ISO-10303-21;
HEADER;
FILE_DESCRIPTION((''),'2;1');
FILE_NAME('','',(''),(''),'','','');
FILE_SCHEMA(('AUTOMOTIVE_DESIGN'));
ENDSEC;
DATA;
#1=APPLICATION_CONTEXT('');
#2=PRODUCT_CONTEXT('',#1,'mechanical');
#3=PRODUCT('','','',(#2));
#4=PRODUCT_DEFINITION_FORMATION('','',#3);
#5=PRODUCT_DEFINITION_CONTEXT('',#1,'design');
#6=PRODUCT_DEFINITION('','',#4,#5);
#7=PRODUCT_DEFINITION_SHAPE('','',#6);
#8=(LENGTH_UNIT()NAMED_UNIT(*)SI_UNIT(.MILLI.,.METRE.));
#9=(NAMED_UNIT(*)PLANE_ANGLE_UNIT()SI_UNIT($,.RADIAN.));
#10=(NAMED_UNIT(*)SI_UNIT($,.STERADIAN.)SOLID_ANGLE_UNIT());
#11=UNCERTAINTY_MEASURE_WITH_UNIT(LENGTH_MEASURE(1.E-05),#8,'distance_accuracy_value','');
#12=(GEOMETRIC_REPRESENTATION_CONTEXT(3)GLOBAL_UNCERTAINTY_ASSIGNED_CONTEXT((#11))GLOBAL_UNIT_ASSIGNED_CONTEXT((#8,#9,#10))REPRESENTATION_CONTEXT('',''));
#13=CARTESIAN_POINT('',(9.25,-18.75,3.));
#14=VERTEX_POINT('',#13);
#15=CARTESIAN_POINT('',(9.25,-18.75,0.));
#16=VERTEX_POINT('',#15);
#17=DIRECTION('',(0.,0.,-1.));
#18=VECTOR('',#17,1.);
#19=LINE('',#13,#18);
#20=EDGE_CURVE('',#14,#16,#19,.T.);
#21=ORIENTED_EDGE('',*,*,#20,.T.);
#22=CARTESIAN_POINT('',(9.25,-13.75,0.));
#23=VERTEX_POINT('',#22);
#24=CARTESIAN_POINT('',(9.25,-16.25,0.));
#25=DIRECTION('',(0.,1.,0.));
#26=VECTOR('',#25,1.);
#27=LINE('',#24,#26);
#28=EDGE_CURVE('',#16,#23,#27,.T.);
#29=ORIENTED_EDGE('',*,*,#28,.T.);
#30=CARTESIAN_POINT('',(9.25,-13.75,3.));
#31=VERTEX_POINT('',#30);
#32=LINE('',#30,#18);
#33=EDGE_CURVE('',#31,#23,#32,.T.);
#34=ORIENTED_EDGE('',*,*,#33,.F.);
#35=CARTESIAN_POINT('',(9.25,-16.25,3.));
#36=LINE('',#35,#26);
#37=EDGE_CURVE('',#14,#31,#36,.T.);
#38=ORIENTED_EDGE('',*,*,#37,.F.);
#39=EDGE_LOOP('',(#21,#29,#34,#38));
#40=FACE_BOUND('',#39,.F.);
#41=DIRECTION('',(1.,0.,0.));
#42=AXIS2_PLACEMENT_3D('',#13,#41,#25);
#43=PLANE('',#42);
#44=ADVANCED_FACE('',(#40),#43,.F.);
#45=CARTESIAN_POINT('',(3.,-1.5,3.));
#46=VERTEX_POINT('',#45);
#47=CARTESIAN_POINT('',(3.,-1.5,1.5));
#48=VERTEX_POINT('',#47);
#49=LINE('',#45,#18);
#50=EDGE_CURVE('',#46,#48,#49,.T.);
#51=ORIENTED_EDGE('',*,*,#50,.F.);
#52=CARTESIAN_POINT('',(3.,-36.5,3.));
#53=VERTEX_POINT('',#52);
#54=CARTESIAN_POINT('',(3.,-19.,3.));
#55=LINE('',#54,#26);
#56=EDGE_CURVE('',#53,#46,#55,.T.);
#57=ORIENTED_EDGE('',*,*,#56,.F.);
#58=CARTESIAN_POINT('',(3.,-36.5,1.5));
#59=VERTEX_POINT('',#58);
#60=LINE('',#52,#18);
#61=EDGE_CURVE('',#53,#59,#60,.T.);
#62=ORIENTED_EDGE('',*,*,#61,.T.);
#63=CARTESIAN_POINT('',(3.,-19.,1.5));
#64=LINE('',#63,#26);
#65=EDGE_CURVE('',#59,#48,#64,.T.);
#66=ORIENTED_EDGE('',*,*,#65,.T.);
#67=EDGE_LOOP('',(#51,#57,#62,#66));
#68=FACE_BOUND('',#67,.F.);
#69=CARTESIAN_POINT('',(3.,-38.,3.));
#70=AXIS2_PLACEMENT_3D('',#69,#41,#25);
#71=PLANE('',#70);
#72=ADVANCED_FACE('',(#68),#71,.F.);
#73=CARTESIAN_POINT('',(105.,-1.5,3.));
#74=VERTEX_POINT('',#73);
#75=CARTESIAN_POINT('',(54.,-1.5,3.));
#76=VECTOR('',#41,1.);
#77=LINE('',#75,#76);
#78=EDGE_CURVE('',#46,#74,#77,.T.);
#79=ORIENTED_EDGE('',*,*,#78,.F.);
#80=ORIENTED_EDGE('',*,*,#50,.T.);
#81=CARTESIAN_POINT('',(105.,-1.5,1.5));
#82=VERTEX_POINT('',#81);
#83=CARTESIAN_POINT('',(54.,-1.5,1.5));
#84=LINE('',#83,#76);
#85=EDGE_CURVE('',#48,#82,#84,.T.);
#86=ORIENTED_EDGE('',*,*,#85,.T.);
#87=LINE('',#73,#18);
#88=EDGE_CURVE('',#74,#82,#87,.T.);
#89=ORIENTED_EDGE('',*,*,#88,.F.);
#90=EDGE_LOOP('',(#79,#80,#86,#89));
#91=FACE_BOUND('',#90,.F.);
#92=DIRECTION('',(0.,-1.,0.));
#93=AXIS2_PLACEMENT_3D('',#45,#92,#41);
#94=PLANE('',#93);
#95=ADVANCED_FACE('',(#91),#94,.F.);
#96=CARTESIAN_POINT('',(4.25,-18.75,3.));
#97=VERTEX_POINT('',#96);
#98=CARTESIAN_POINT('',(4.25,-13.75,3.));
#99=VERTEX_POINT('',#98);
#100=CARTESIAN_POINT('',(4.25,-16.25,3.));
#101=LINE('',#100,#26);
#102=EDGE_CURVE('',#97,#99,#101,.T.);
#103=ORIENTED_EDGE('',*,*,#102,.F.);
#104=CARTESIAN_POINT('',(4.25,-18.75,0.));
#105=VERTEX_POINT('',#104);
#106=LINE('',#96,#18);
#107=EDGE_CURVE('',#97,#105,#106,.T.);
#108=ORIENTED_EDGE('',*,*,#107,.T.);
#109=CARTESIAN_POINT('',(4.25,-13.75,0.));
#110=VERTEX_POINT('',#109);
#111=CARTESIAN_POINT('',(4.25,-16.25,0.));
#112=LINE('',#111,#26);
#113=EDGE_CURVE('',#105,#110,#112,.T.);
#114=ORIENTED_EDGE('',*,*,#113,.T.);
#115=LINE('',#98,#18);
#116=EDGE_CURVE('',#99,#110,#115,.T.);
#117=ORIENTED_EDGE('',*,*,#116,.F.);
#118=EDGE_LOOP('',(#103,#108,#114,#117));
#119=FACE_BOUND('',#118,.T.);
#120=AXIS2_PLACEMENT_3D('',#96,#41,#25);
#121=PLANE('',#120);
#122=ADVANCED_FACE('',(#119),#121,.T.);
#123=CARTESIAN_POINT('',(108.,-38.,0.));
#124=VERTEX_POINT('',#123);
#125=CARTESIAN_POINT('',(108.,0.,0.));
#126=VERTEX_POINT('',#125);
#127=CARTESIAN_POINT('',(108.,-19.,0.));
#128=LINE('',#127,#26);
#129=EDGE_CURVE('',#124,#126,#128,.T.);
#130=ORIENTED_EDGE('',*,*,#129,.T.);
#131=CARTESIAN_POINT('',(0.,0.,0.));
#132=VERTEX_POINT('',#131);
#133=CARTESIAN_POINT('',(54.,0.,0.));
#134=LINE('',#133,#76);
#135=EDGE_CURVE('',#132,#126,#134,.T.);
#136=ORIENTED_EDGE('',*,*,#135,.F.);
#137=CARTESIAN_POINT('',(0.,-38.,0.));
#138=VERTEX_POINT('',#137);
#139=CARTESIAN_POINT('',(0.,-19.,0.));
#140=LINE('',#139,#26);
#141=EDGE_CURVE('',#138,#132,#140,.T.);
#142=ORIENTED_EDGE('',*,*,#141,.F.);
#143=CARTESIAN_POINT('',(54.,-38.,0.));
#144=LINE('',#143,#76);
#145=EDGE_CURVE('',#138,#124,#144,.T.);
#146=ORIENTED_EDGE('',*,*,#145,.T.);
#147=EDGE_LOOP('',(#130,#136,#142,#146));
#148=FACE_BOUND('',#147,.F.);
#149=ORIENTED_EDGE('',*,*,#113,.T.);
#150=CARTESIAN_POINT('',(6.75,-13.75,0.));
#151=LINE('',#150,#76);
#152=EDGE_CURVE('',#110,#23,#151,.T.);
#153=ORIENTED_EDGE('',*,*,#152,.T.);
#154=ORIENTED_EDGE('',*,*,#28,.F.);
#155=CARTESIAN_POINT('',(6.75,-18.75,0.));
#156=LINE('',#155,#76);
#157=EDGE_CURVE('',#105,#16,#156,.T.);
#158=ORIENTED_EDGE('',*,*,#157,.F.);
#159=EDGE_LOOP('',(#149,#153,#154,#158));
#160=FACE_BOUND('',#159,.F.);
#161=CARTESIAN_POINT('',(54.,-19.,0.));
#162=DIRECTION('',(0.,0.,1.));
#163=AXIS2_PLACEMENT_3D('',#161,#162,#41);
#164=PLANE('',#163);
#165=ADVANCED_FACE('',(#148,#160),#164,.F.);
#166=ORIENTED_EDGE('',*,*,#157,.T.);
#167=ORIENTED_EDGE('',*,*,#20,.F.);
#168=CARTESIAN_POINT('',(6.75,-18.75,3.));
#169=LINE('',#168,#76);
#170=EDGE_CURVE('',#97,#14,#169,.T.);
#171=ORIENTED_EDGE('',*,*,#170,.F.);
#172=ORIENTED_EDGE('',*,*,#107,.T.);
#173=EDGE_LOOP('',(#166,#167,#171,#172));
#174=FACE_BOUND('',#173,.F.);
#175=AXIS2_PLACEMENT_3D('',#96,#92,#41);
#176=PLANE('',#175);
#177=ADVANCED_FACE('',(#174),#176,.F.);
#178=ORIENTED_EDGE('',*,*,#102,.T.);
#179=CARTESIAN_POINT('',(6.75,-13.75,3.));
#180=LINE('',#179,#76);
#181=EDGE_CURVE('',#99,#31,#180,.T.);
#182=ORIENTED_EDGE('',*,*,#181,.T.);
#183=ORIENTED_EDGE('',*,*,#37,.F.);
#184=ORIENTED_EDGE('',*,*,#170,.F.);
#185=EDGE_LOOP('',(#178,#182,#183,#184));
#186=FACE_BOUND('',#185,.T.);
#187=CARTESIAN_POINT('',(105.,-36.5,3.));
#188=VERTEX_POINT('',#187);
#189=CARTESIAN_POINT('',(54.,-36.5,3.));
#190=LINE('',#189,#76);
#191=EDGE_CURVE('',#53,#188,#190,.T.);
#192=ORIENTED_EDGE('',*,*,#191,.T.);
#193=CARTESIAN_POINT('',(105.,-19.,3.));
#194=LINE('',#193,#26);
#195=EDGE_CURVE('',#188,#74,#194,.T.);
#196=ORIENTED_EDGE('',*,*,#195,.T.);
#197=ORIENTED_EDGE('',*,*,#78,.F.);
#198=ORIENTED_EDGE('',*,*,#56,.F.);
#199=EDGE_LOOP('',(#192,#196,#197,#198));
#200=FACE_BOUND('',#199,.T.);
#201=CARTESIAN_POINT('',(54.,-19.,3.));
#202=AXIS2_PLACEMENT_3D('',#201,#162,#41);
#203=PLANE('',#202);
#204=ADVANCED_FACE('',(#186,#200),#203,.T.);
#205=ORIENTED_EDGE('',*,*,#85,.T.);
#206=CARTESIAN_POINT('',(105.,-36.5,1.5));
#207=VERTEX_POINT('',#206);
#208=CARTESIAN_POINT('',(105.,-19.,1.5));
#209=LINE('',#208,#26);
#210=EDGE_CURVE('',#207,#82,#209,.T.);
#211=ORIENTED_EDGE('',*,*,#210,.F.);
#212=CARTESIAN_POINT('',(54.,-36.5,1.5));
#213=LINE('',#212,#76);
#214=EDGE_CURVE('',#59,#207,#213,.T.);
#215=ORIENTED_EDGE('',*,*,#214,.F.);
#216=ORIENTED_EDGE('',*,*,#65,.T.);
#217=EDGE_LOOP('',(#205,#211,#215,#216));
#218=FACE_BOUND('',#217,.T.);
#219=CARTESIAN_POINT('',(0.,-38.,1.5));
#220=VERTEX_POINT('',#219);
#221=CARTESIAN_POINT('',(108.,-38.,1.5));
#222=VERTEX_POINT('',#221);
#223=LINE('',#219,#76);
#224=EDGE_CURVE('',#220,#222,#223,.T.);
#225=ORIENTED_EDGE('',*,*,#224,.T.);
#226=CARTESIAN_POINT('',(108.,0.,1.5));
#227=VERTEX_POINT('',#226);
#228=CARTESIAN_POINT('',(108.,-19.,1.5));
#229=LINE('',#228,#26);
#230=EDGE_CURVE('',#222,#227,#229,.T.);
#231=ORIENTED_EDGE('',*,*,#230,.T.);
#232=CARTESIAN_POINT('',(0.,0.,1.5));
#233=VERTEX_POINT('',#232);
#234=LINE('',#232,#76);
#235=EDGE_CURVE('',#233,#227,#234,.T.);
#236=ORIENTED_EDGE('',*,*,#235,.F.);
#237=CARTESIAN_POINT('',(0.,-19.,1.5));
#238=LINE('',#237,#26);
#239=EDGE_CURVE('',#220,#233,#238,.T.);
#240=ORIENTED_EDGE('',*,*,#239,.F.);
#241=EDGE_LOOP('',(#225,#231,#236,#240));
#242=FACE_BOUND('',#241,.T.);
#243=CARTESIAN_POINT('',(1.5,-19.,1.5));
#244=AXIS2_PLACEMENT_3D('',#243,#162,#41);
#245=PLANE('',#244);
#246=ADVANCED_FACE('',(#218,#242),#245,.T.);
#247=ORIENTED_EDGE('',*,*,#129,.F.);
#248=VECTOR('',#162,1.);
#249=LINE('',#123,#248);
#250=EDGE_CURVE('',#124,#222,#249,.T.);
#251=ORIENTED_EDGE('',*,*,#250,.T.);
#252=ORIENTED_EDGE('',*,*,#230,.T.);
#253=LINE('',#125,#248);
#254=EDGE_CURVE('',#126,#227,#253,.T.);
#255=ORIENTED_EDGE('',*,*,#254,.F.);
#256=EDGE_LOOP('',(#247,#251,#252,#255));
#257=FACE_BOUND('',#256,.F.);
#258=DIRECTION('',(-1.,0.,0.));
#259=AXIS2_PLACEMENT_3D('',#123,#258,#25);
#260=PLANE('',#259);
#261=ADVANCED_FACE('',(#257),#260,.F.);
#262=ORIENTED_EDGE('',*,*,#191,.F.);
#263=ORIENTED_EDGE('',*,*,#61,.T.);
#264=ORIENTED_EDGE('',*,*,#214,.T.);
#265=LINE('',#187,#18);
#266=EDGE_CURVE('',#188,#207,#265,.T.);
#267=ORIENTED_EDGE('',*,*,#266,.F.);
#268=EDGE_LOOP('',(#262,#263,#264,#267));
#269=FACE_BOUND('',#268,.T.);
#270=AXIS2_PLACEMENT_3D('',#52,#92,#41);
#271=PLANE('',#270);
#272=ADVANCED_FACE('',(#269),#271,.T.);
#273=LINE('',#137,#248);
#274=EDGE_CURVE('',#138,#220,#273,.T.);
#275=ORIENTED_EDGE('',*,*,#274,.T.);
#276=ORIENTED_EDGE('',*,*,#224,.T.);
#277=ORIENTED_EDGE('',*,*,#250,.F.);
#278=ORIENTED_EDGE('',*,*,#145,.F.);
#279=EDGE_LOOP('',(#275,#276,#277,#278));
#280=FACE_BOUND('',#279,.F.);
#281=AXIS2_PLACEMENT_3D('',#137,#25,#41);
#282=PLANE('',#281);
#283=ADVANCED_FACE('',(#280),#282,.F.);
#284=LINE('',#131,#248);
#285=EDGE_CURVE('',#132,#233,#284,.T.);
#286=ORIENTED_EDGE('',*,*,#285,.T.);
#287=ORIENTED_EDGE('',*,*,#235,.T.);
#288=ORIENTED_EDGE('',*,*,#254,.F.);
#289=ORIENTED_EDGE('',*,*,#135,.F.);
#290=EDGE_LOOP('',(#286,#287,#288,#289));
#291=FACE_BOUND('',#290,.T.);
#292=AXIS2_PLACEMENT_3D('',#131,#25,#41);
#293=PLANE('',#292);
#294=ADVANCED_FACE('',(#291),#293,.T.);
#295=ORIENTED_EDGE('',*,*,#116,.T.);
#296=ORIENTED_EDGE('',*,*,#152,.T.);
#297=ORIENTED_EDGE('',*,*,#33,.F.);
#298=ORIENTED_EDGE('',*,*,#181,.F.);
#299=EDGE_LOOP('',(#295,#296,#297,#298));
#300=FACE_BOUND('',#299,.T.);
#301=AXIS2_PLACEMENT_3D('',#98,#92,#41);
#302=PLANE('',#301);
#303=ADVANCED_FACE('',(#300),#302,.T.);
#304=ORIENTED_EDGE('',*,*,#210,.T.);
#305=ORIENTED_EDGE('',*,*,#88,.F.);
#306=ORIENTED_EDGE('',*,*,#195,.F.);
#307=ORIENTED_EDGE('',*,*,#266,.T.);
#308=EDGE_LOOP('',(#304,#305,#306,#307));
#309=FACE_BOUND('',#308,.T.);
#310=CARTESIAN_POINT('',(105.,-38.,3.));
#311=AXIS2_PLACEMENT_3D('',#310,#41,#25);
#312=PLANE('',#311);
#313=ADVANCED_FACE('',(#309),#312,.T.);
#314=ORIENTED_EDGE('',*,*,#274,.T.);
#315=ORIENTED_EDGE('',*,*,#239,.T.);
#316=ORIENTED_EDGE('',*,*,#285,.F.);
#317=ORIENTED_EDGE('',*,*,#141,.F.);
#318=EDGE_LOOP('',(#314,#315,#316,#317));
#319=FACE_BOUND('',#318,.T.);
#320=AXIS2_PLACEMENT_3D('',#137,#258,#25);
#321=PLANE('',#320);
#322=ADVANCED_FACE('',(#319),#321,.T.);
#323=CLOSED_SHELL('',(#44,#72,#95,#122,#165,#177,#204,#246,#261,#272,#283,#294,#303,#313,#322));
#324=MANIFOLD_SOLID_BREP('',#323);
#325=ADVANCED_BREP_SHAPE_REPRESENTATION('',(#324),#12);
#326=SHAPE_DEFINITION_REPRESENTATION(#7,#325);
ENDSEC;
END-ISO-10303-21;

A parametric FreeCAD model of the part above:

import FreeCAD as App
import Part
import Sketcher

doc = App.newDocument("Part")
params = doc.addObject("Spreadsheet::Sheet", "Params")
for row, (alias, value) in enumerate([
    ("sketch1_width", "108 mm"),
    ("sketch1_height", "38 mm"),
    ("pad1_length", "3 mm"),
    ("sketch2_width", "3 mm"),
    ("sketch2_height", "38 mm"),
    ("pocket1_length", "1.5 mm"),
    ("sketch3_width", "3 mm"),
    ("sketch3_height", "38 mm"),
    ("pocket2_length", "1.5 mm"),
    ("sketch4_width", "102 mm"),
    ("sketch4_height", "1.5 mm"),
    ("pocket3_length", "1.5 mm"),
    ("sketch5_width", "102 mm"),
    ("sketch5_height", "1.5 mm"),
    ("pocket4_length", "1.5 mm"),
    ("sketch6_width", "5 mm"),
    ("pocket5_length", "3 mm"),
], start=1):
    params.set(f"A{row}", alias)
    params.set(f"B{row}", "=" + value)
    params.setAlias(f"B{row}", alias)

body = doc.addObject("PartDesign::Body", "Body")

# Sketch on XY plane
sketch1 = doc.addObject("Sketcher::SketchObject", "Sketch")
body.addObject(sketch1)
sketch1.AttachmentSupport = (doc.XY_Plane, [""])
sketch1.MapMode = "FlatFace"
sketch1.addGeometry([
    Part.LineSegment(App.Vector(0, 0, 0), App.Vector(0, -38, 0)),
    Part.LineSegment(App.Vector(0, -38, 0), App.Vector(108, -38, 0)),
    Part.LineSegment(App.Vector(108, -38, 0), App.Vector(108, 0, 0)),
    Part.LineSegment(App.Vector(108, 0, 0), App.Vector(0, 0, 0)),
], False)
sketch1.addConstraint([
    Sketcher.Constraint("Coincident", 0, 2, 1, 1),
    Sketcher.Constraint("Coincident", 1, 2, 2, 1),
    Sketcher.Constraint("Coincident", 2, 2, 3, 1),
    Sketcher.Constraint("Coincident", 3, 2, 0, 1),
    Sketcher.Constraint("Vertical", 0),
    Sketcher.Constraint("Horizontal", 1),
    Sketcher.Constraint("Vertical", 2),
    Sketcher.Constraint("Horizontal", 3),
    Sketcher.Constraint("Coincident", 3, 2, -1, 1),
    Sketcher.Constraint("DistanceX", 1, 1, 1, 2, 108.0),
    Sketcher.Constraint("DistanceY", 0, 2, 0, 1, 38.0),
])
sketch1.setExpression("Constraints[9]", "Params.sketch1_width")
sketch1.setExpression("Constraints[10]", "Params.sketch1_height")
pad1 = doc.addObject("PartDesign::Pad", "Pad")
body.addObject(pad1)
pad1.Profile = sketch1
pad1.setExpression("Length", "Params.pad1_length")

# Sketch on XY plane
sketch2 = doc.addObject("Sketcher::SketchObject", "Sketch001")
body.addObject(sketch2)
sketch2.AttachmentSupport = (doc.XY_Plane, [""])
sketch2.MapMode = "FlatFace"
sketch2.AttachmentOffset = App.Placement(App.Vector(0, 0, 3), App.Rotation())
sketch2.addGeometry([
    Part.LineSegment(App.Vector(0, 0, 0), App.Vector(0, -38, 0)),
    Part.LineSegment(App.Vector(0, -38, 0), App.Vector(3, -38, 0)),
    Part.LineSegment(App.Vector(3, -38, 0), App.Vector(3, 0, 0)),
    Part.LineSegment(App.Vector(3, 0, 0), App.Vector(0, 0, 0)),
], False)
sketch2.addConstraint([
    Sketcher.Constraint("Coincident", 0, 2, 1, 1),
    Sketcher.Constraint("Coincident", 1, 2, 2, 1),
    Sketcher.Constraint("Coincident", 2, 2, 3, 1),
    Sketcher.Constraint("Coincident", 3, 2, 0, 1),
    Sketcher.Constraint("Vertical", 0),
    Sketcher.Constraint("Horizontal", 1),
    Sketcher.Constraint("Vertical", 2),
    Sketcher.Constraint("Horizontal", 3),
    Sketcher.Constraint("Coincident", 3, 2, -1, 1),
    Sketcher.Constraint("DistanceX", 1, 1, 1, 2, 3.0),
    Sketcher.Constraint("DistanceY", 0, 2, 0, 1, 38.0),
])
sketch2.setExpression("Constraints[9]", "Params.sketch2_width")
sketch2.setExpression("Constraints[10]", "Params.sketch2_height")
pocket1 = doc.addObject("PartDesign::Pocket", "Pocket")
body.addObject(pocket1)
pocket1.Profile = sketch2
pocket1.setExpression("Length", "Params.pocket1_length")

# Sketch on XY plane
sketch3 = doc.addObject("Sketcher::SketchObject", "Sketch002")
body.addObject(sketch3)
sketch3.AttachmentSupport = (doc.XY_Plane, [""])
sketch3.MapMode = "FlatFace"
sketch3.AttachmentOffset = App.Placement(App.Vector(0, 0, 3), App.Rotation())
sketch3.addGeometry([
    Part.LineSegment(App.Vector(105, 0, 0), App.Vector(105, -38, 0)),
    Part.LineSegment(App.Vector(105, -38, 0), App.Vector(108, -38, 0)),
    Part.LineSegment(App.Vector(108, -38, 0), App.Vector(108, 0, 0)),
    Part.LineSegment(App.Vector(108, 0, 0), App.Vector(105, 0, 0)),
], False)
sketch3.addConstraint([
    Sketcher.Constraint("Coincident", 0, 2, 1, 1),
    Sketcher.Constraint("Coincident", 1, 2, 2, 1),
    Sketcher.Constraint("Coincident", 2, 2, 3, 1),
    Sketcher.Constraint("Coincident", 3, 2, 0, 1),
    Sketcher.Constraint("Vertical", 0),
    Sketcher.Constraint("Horizontal", 1),
    Sketcher.Constraint("Vertical", 2),
    Sketcher.Constraint("Horizontal", 3),
    Sketcher.Constraint("PointOnObject", 2, 2, -1),
    Sketcher.Constraint("DistanceX", 1, 1, 1, 2, 3.0),
    Sketcher.Constraint("DistanceY", 0, 2, 0, 1, 38.0),
    Sketcher.Constraint("DistanceX", -1, 1, 0, 2, 105.0),
])
sketch3.setExpression("Constraints[9]", "Params.sketch3_width")
sketch3.setExpression("Constraints[10]", "Params.sketch3_height")
pocket2 = doc.addObject("PartDesign::Pocket", "Pocket001")
body.addObject(pocket2)
pocket2.Profile = sketch3
pocket2.setExpression("Length", "Params.pocket2_length")

# Sketch on XY plane
sketch4 = doc.addObject("Sketcher::SketchObject", "Sketch003")
body.addObject(sketch4)
sketch4.AttachmentSupport = (doc.XY_Plane, [""])
sketch4.MapMode = "FlatFace"
sketch4.AttachmentOffset = App.Placement(App.Vector(0, 0, 3), App.Rotation())
sketch4.addGeometry([
    Part.LineSegment(App.Vector(3, 0, 0), App.Vector(3, -1.5, 0)),
    Part.LineSegment(App.Vector(3, -1.5, 0), App.Vector(105, -1.5, 0)),
    Part.LineSegment(App.Vector(105, -1.5, 0), App.Vector(105, 0, 0)),
    Part.LineSegment(App.Vector(105, 0, 0), App.Vector(3, 0, 0)),
], False)
sketch4.addConstraint([
    Sketcher.Constraint("Coincident", 0, 2, 1, 1),
    Sketcher.Constraint("Coincident", 1, 2, 2, 1),
    Sketcher.Constraint("Coincident", 2, 2, 3, 1),
    Sketcher.Constraint("Coincident", 3, 2, 0, 1),
    Sketcher.Constraint("Vertical", 0),
    Sketcher.Constraint("Horizontal", 1),
    Sketcher.Constraint("Vertical", 2),
    Sketcher.Constraint("Horizontal", 3),
    Sketcher.Constraint("PointOnObject", 2, 2, -1),
    Sketcher.Constraint("DistanceX", 1, 1, 1, 2, 102.0),
    Sketcher.Constraint("DistanceY", 0, 2, 0, 1, 1.5),
    Sketcher.Constraint("DistanceX", -1, 1, 0, 2, 3.0),
])
sketch4.setExpression("Constraints[9]", "Params.sketch4_width")
sketch4.setExpression("Constraints[10]", "Params.sketch4_height")
pocket3 = doc.addObject("PartDesign::Pocket", "Pocket002")
body.addObject(pocket3)
pocket3.Profile = sketch4
pocket3.setExpression("Length", "Params.pocket3_length")

# Sketch on XY plane
sketch5 = doc.addObject("Sketcher::SketchObject", "Sketch004")
body.addObject(sketch5)
sketch5.AttachmentSupport = (doc.XY_Plane, [""])
sketch5.MapMode = "FlatFace"
sketch5.AttachmentOffset = App.Placement(App.Vector(0, 0, 3), App.Rotation())
sketch5.addGeometry([
    Part.LineSegment(App.Vector(3, -36.5, 0), App.Vector(3, -38, 0)),
    Part.LineSegment(App.Vector(3, -38, 0), App.Vector(105, -38, 0)),
    Part.LineSegment(App.Vector(105, -38, 0), App.Vector(105, -36.5, 0)),
    Part.LineSegment(App.Vector(105, -36.5, 0), App.Vector(3, -36.5, 0)),
], False)
sketch5.addConstraint([
    Sketcher.Constraint("Coincident", 0, 2, 1, 1),
    Sketcher.Constraint("Coincident", 1, 2, 2, 1),
    Sketcher.Constraint("Coincident", 2, 2, 3, 1),
    Sketcher.Constraint("Coincident", 3, 2, 0, 1),
    Sketcher.Constraint("Vertical", 0),
    Sketcher.Constraint("Horizontal", 1),
    Sketcher.Constraint("Vertical", 2),
    Sketcher.Constraint("Horizontal", 3),
    Sketcher.Constraint("DistanceX", 1, 1, 1, 2, 102.0),
    Sketcher.Constraint("DistanceY", 0, 2, 0, 1, 1.5),
    Sketcher.Constraint("DistanceX", -1, 1, 0, 2, 3.0),
    Sketcher.Constraint("DistanceY", 0, 2, -1, 1, 38.0),
])
sketch5.setExpression("Constraints[8]", "Params.sketch5_width")
sketch5.setExpression("Constraints[9]", "Params.sketch5_height")
pocket4 = doc.addObject("PartDesign::Pocket", "Pocket003")
body.addObject(pocket4)
pocket4.Profile = sketch5
pocket4.setExpression("Length", "Params.pocket4_length")

# Sketch on XY plane
sketch6 = doc.addObject("Sketcher::SketchObject", "Sketch005")
body.addObject(sketch6)
sketch6.AttachmentSupport = (doc.XY_Plane, [""])
sketch6.MapMode = "FlatFace"
sketch6.AttachmentOffset = App.Placement(App.Vector(0, 0, 3), App.Rotation())
sketch6.addGeometry([
    Part.LineSegment(App.Vector(4, -14, 0), App.Vector(4, -19, 0)),
    Part.LineSegment(App.Vector(4, -19, 0), App.Vector(9, -19, 0)),
    Part.LineSegment(App.Vector(9, -19, 0), App.Vector(9, -14, 0)),
    Part.LineSegment(App.Vector(9, -14, 0), App.Vector(4, -14, 0)),
], False)
sketch6.addConstraint([
    Sketcher.Constraint("Coincident", 0, 2, 1, 1),
    Sketcher.Constraint("Coincident", 1, 2, 2, 1),
    Sketcher.Constraint("Coincident", 2, 2, 3, 1),
    Sketcher.Constraint("Coincident", 3, 2, 0, 1),
    Sketcher.Constraint("Vertical", 0),
    Sketcher.Constraint("Horizontal", 1),
    Sketcher.Constraint("Vertical", 2),
    Sketcher.Constraint("Horizontal", 3),
    Sketcher.Constraint("Equal", 3, 0),
    Sketcher.Constraint("DistanceX", 1, 1, 1, 2, 5.0),
    Sketcher.Constraint("DistanceX", -1, 1, 0, 2, 4.25),
    Sketcher.Constraint("DistanceY", 0, 2, -1, 1, 18.75),
])
sketch6.setExpression("Constraints[9]", "Params.sketch6_width")
pocket5 = doc.addObject("PartDesign::Pocket", "Pocket004")
body.addObject(pocket5)
pocket5.Profile = sketch6
pocket5.setExpression("Length", "Params.pocket5_length")

doc.recompute()
